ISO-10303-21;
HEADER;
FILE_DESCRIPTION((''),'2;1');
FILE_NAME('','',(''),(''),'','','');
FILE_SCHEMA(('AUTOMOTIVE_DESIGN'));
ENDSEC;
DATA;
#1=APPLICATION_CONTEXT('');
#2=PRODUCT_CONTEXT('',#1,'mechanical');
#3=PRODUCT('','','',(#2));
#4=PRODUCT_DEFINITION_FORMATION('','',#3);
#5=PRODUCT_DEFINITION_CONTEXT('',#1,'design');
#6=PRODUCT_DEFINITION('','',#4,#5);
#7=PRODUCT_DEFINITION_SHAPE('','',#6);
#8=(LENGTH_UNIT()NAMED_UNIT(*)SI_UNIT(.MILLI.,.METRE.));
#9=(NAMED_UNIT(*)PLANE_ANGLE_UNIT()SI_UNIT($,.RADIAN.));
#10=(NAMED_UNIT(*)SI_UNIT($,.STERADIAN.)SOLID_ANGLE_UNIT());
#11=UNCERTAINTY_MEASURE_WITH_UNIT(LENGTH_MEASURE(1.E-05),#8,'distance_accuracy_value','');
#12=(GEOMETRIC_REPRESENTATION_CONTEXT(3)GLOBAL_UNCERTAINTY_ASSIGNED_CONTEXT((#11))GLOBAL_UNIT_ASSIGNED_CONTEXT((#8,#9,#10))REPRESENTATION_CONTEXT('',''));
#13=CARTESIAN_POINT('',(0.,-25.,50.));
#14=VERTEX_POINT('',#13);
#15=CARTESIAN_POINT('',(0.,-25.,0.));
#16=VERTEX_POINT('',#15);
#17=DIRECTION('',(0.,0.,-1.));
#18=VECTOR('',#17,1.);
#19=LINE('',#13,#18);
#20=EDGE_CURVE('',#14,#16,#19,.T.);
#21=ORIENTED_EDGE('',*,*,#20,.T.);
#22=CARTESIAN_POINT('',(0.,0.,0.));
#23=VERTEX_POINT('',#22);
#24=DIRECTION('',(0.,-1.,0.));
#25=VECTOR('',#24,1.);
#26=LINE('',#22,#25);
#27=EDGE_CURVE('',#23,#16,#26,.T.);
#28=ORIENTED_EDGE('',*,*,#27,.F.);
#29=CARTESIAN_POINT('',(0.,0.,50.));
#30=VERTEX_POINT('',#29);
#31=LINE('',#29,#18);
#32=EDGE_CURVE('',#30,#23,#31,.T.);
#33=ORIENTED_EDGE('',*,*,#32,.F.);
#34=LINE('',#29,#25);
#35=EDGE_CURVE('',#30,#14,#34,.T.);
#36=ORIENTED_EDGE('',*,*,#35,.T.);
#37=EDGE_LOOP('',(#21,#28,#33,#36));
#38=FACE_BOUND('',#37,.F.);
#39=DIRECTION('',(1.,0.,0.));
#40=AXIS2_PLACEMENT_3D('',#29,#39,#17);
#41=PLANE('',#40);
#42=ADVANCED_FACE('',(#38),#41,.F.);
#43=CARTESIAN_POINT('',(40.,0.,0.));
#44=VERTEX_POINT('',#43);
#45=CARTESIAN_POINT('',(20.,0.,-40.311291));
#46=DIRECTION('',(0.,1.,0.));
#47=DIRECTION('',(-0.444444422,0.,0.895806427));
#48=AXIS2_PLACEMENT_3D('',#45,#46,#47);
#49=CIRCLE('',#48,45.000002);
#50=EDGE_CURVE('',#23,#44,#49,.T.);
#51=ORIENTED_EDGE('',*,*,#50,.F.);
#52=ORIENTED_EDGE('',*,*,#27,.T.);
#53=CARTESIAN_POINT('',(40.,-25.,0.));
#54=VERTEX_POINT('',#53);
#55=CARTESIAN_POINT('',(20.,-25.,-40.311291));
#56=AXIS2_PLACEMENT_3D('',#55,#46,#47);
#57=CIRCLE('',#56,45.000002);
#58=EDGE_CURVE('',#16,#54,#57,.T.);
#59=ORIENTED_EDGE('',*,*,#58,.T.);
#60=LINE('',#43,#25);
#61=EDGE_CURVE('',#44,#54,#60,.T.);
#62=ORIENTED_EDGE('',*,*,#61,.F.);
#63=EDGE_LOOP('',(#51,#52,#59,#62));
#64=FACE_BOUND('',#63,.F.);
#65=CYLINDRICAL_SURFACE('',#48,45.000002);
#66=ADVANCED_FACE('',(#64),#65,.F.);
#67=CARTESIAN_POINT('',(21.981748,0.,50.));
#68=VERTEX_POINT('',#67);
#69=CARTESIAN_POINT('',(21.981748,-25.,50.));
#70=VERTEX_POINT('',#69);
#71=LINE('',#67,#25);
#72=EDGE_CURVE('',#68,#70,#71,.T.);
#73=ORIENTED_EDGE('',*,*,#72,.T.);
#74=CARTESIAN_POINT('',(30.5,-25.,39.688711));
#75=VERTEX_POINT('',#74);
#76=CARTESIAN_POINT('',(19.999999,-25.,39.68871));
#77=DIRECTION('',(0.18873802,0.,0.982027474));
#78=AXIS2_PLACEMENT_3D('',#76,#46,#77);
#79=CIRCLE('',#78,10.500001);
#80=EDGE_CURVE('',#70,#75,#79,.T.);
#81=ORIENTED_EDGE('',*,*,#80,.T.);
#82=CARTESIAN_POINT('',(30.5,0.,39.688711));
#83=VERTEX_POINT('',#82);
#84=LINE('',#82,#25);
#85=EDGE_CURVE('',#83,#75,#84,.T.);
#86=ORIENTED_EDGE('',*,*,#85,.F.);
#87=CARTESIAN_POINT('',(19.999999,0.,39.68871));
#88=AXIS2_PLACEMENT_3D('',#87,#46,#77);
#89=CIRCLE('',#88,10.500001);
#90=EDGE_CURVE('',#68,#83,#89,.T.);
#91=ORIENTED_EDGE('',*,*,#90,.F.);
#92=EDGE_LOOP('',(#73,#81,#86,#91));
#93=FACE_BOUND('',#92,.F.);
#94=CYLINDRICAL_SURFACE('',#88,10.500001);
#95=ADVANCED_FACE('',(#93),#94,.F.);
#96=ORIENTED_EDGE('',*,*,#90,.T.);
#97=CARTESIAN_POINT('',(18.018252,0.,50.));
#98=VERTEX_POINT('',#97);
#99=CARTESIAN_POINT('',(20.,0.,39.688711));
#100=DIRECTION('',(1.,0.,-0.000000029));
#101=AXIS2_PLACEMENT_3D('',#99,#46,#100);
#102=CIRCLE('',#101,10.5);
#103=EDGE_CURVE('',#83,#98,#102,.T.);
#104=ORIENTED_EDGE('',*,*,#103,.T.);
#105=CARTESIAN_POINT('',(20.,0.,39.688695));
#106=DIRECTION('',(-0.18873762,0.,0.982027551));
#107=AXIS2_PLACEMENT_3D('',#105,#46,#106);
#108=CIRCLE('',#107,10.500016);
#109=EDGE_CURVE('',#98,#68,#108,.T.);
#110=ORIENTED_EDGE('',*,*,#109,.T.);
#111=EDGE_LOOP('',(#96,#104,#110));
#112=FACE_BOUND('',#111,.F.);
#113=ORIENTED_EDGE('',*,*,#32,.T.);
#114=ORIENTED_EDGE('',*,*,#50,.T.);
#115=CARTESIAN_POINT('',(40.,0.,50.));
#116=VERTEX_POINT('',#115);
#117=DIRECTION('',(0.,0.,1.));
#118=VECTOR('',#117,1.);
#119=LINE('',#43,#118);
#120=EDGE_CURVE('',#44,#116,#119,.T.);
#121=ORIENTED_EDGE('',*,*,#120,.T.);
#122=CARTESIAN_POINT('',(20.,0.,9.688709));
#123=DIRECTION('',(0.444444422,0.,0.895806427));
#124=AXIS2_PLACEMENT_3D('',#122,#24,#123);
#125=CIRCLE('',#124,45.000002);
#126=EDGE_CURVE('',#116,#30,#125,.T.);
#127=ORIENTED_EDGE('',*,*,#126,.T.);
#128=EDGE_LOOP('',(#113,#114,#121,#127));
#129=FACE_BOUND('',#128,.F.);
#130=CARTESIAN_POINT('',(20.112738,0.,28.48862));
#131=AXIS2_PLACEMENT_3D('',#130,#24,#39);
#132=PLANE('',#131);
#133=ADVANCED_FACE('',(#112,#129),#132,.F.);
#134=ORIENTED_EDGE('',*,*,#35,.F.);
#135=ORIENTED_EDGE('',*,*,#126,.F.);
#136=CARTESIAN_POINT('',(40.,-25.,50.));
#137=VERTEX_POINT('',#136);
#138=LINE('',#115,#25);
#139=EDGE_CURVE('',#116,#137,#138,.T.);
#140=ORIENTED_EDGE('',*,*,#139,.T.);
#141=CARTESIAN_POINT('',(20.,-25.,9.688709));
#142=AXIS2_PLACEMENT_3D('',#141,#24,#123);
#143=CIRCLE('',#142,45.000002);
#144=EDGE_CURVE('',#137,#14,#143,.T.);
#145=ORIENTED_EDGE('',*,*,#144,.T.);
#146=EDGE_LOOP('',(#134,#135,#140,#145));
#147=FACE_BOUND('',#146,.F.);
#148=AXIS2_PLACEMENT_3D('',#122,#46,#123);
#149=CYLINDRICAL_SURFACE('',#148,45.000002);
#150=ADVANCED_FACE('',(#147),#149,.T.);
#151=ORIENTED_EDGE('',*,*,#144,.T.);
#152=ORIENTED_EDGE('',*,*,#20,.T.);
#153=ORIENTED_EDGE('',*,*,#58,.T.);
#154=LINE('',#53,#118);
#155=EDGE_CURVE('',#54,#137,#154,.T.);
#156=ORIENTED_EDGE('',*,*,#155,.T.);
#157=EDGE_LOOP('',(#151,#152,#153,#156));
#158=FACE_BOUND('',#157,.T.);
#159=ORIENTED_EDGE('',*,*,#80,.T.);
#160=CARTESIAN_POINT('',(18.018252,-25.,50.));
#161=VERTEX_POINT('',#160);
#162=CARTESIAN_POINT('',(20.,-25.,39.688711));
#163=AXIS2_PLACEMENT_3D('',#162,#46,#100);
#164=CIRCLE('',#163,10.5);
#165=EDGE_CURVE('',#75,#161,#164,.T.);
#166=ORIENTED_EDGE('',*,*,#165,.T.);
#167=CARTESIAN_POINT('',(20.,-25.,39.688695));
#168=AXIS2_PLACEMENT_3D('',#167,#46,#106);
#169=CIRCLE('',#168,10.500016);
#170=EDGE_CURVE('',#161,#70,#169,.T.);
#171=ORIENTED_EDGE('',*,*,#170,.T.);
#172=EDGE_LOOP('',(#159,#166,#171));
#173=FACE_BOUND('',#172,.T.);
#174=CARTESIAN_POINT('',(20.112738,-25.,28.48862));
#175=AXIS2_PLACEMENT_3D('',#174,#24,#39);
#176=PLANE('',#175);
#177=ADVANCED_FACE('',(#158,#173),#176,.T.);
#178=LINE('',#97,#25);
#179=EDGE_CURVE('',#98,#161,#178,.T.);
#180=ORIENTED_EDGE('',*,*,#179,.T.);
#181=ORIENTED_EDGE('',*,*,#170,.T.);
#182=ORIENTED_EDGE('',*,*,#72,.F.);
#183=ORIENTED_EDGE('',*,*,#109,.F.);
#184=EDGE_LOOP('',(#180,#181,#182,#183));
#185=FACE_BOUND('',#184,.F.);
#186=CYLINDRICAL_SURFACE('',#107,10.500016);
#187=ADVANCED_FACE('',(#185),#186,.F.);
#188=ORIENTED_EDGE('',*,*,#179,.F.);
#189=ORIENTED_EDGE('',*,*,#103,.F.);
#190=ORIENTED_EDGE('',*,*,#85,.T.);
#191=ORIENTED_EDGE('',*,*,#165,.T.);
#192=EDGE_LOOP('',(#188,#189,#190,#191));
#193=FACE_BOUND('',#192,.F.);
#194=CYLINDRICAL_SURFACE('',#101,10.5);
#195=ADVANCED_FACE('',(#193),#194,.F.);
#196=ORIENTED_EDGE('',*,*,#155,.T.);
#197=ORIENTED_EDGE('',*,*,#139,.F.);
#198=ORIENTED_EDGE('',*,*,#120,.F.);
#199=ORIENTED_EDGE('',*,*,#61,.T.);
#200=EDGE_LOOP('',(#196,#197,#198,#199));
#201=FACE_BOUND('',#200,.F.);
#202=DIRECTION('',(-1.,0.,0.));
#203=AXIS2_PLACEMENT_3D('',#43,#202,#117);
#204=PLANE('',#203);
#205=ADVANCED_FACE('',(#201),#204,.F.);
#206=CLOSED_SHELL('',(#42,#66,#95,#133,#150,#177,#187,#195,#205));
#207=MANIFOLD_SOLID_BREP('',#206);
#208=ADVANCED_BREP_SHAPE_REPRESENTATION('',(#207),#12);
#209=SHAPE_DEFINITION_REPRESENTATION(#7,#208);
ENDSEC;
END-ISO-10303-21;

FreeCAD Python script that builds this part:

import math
import FreeCAD as App
import Part
import Sketcher

doc = App.newDocument("Part")
params = doc.addObject("Spreadsheet::Sheet", "Params")
for row, (alias, value) in enumerate([
    ("sketch1_radius", "10.500001 mm"),
    ("sketch1_height", "50 mm"),
    ("pad1_length", "25 mm"),
], start=1):
    params.set(f"A{row}", alias)
    params.set(f"B{row}", "=" + value)
    params.setAlias(f"B{row}", alias)

body = doc.addObject("PartDesign::Body", "Body")

sketch1 = doc.addObject("Sketcher::SketchObject", "Sketch")
body.addObject(sketch1)
sketch1.AttachmentSupport = (doc.XZ_Plane, [""])
sketch1.MapMode = "FlatFace"
sketch1.addGeometry(Part.LineSegment(App.Vector(0, 50, 0), App.Vector(0, 0, 0)), False)
sketch1.addGeometry(Part.ArcOfCircle(Part.Circle(App.Vector(20, -40.3, 0), App.Vector(0, 0, 1), 45), math.radians(64), math.radians(116)), False)
sketch1.addGeometry(Part.LineSegment(App.Vector(40, 0, 0), App.Vector(40, 50, 0)), False)
sketch1.addGeometry(Part.ArcOfCircle(Part.Circle(App.Vector(20, 9.7, 0), App.Vector(0, 0, 1), 45), math.radians(64), math.radians(116)), False)
sketch1.addGeometry(Part.ArcOfCircle(Part.Circle(App.Vector(20, 39.7, 0), App.Vector(0, 0, 1), 10.5), math.radians(0), math.radians(79)), False)
sketch1.addGeometry(Part.ArcOfCircle(Part.Circle(App.Vector(20, 39.7, 0), App.Vector(0, 0, 1), 10.5), math.radians(101), math.radians(360)), False)
sketch1.addGeometry(Part.ArcOfCircle(Part.Circle(App.Vector(20, 39.7, 0), App.Vector(0, 0, 1), 10.5), math.radians(79), math.radians(101)), False)
sketch1.addConstraint(Sketcher.Constraint("Coincident", 0, 2, 1, 2))
sketch1.addConstraint(Sketcher.Constraint("Coincident", 1, 1, 2, 1))
sketch1.addConstraint(Sketcher.Constraint("Coincident", 2, 2, 3, 1))
sketch1.addConstraint(Sketcher.Constraint("Coincident", 3, 2, 0, 1))
sketch1.addConstraint(Sketcher.Constraint("Tangent", 4, 1, 5, 2))
sketch1.addConstraint(Sketcher.Constraint("Tangent", 5, 1, 6, 2))
sketch1.addConstraint(Sketcher.Constraint("Tangent", 6, 1, 4, 2))
sketch1.addConstraint(Sketcher.Constraint("Vertical", 0))
sketch1.addConstraint(Sketcher.Constraint("Vertical", 2))
sketch1.addConstraint(Sketcher.Constraint("Coincident", 0, 2, -1, 1))
sketch1.addConstraint(Sketcher.Constraint("Equal", 1, 3))
sketch1.addConstraint(Sketcher.Constraint("PointOnObject", 1, 1, -1))
sketch1.addConstraint(Sketcher.Constraint("Horizontal", 2, 2, 3, 2))
sketch1.addConstraint(Sketcher.Constraint("Horizontal", 5, 3, 4, 1))
sketch1.addConstraint(Sketcher.Constraint("Horizontal", 3, 2, 5, 1))
sketch1.addConstraint(Sketcher.Constraint("Horizontal", 5, 1, 6, 1))
sketch1.addConstraint(Sketcher.Constraint("Vertical", 3, 3, 4, 3))
sketch1.addConstraint(Sketcher.Constraint("Radius", 4, 10.500001))
sketch1.addConstraint(Sketcher.Constraint("DistanceY", 0, 2, 0, 1, 50.0))
sketch1.addConstraint(Sketcher.Constraint("DistanceX", -1, 1, 1, 3, 20.0))
sketch1.addConstraint(Sketcher.Constraint("DistanceY", 3, 3, 4, 3, 30.000001))
sketch1.addConstraint(Sketcher.Constraint("Radius", 1, 45.000002))
sketch1.setExpression("Constraints[17]", "Params.sketch1_radius")
sketch1.setExpression("Constraints[18]", "Params.sketch1_height")
pad1 = doc.addObject("PartDesign::Pad", "Pad")
body.addObject(pad1)
pad1.Profile = sketch1
pad1.setExpression("Length", "Params.pad1_length")

doc.recompute()
